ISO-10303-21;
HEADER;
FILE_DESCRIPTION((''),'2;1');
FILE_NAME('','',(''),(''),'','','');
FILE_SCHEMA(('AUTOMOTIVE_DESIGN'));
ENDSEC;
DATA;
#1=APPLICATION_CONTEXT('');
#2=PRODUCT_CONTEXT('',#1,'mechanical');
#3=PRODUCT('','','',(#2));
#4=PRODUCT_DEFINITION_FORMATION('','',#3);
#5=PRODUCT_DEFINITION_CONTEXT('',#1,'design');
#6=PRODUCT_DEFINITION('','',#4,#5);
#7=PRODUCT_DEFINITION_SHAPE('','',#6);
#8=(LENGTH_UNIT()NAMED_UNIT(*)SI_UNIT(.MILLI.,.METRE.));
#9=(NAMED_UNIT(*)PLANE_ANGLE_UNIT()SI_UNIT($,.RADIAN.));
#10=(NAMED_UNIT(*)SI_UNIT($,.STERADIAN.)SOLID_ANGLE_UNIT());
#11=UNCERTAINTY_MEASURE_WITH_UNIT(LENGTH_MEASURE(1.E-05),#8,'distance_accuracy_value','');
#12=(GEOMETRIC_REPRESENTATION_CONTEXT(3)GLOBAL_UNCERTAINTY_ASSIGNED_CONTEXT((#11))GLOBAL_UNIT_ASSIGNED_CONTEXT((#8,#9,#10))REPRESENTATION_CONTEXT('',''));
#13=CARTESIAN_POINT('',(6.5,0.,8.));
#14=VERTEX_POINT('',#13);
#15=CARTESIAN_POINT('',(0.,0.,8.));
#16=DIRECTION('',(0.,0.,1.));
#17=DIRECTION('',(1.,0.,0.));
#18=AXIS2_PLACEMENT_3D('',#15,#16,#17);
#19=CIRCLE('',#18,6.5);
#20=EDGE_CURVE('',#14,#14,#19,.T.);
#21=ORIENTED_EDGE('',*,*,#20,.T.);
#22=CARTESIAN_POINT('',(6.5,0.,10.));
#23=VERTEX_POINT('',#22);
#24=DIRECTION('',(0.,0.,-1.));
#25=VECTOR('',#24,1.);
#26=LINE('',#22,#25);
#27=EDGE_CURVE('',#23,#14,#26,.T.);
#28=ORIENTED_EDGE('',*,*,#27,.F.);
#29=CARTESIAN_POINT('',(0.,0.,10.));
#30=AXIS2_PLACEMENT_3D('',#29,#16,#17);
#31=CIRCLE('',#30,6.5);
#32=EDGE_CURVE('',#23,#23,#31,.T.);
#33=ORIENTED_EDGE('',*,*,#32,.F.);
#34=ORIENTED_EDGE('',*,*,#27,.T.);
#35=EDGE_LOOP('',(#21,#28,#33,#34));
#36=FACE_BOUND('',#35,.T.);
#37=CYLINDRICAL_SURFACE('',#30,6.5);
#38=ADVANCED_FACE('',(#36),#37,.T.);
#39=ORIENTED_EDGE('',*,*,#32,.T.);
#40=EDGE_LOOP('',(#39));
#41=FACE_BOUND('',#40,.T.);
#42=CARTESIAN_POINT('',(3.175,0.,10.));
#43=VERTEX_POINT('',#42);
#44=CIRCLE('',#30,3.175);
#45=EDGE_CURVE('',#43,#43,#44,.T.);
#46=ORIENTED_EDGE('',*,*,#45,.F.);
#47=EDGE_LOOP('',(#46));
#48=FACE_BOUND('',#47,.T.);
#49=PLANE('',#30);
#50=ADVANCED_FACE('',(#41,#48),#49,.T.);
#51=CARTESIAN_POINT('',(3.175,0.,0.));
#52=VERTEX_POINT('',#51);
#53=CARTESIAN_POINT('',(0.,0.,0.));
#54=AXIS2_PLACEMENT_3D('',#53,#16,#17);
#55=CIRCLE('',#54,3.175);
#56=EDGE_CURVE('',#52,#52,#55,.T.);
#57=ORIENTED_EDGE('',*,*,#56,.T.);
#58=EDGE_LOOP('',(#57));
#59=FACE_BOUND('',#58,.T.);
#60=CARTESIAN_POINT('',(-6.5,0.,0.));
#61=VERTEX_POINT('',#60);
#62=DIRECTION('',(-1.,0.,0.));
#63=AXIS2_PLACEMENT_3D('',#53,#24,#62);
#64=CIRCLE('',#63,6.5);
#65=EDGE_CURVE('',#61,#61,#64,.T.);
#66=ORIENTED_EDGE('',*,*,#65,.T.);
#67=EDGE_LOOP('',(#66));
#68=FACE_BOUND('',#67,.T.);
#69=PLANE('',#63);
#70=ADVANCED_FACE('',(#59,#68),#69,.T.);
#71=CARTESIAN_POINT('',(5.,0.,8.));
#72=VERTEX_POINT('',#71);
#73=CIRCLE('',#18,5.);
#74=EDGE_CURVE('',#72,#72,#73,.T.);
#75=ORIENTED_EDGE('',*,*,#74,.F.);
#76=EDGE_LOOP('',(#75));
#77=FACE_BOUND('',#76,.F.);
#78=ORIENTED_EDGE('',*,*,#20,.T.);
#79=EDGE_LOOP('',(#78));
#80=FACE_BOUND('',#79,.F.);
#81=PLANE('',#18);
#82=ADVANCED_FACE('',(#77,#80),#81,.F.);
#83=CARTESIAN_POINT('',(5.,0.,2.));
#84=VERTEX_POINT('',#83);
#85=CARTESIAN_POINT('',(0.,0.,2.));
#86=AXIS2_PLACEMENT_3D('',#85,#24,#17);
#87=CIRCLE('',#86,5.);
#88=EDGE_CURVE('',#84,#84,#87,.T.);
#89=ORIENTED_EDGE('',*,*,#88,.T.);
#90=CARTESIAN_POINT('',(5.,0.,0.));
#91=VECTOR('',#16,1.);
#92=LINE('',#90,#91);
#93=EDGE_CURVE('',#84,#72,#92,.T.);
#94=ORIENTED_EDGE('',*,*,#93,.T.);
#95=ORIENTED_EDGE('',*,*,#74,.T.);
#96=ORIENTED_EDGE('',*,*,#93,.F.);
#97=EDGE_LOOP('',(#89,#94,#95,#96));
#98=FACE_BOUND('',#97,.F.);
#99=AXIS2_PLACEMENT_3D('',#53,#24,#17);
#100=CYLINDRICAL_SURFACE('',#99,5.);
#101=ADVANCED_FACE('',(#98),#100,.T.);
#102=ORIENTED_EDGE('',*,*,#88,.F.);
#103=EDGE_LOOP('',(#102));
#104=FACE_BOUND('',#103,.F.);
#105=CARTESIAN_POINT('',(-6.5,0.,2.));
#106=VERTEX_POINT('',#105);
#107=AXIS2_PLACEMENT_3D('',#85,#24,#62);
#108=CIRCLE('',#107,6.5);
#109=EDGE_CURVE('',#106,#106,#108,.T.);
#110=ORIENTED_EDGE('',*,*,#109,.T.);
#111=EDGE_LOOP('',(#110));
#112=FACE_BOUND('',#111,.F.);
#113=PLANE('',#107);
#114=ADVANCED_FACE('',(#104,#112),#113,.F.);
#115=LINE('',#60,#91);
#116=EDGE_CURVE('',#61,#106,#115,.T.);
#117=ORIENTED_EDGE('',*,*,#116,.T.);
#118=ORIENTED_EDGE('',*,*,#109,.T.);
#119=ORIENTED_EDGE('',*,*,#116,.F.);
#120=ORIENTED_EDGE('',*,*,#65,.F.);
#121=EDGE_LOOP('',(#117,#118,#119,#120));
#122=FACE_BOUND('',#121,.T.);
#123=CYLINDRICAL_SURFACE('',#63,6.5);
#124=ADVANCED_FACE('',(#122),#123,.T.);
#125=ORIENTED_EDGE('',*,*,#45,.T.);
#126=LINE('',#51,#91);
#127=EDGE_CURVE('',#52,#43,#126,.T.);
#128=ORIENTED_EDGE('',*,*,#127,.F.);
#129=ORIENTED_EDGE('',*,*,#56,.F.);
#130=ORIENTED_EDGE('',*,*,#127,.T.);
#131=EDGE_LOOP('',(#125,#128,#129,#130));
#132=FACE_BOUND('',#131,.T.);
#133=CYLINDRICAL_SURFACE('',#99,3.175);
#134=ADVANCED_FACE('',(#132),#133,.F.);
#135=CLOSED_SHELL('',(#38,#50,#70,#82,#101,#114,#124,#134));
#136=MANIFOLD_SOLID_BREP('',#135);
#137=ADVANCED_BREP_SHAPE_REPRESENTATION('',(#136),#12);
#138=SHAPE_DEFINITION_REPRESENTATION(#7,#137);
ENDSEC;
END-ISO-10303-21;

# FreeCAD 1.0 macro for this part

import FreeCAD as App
import Part
import Sketcher
from FreeCAD import Vector

doc = App.newDocument("Part")
body = doc.addObject("PartDesign::Body", "Body")

# Sketch on XY plane
sketch1 = doc.addObject("Sketcher::SketchObject", "Sketch")
body.addObject(sketch1)
sketch1.AttachmentSupport = (doc.XY_Plane, [""])
sketch1.MapMode = "FlatFace"
sketch1.addGeometry([
    Part.Circle(Vector(0, 0, 0), Vector(0, 0, 1), 5),
    Part.Circle(Vector(0, 0, 0), Vector(0, 0, 1), 3.2),
], False)
sketch1.addConstraint([
    Sketcher.Constraint("Coincident", 0, 3, -1, 1),
    Sketcher.Constraint("Coincident", 1, 3, -1, 1),
    Sketcher.Constraint("Diameter", 0, 10.0),
    Sketcher.Constraint("Diameter", 1, 6.35),
])
pad1 = doc.addObject("PartDesign::Pad", "Pad")
body.addObject(pad1)
pad1.Profile = sketch1
pad1.Length = 10

# Sketch on XY plane
sketch2 = doc.addObject("Sketcher::SketchObject", "Sketch001")
body.addObject(sketch2)
sketch2.AttachmentSupport = (doc.XY_Plane, [""])
sketch2.MapMode = "FlatFace"
sketch2.AttachmentOffset = App.Placement(Vector(0, 0, 10), App.Rotation())
sketch2.addGeometry([
    Part.Circle(Vector(0, 0, 0), Vector(0, 0, 1), 6),
    Part.Circle(Vector(0, 0, 0), Vector(0, 0, 1), 5),
], False)
sketch2.addConstraint([
    Sketcher.Constraint("Coincident", 0, 3, -1, 1),
    Sketcher.Constraint("Coincident", 1, 3, -1, 1),
    Sketcher.Constraint("Diameter", 0, 13.0),
    Sketcher.Constraint("Diameter", 1, 10.0),
])
pad2 = doc.addObject("PartDesign::Pad", "Pad001")
body.addObject(pad2)
pad2.Profile = sketch2
pad2.Length = 2
pad2.Reversed = True

# Sketch on XY plane
sketch3 = doc.addObject("Sketcher::SketchObject", "Sketch002")
body.addObject(sketch3)
sketch3.AttachmentSupport = (doc.XY_Plane, [""])
sketch3.MapMode = "FlatFace"
sketch3.addGeometry([
    Part.Circle(Vector(0, 0, 0), Vector(0, 0, 1), 6),
    Part.Circle(Vector(0, 0, 0), Vector(0, 0, 1), 5),
], False)
sketch3.addConstraint([
    Sketcher.Constraint("Coincident", 0, 3, -1, 1),
    Sketcher.Constraint("Coincident", 1, 3, -1, 1),
    Sketcher.Constraint("Diameter", 0, 13.0),
    Sketcher.Constraint("Diameter", 1, 10.0),
])
pad3 = doc.addObject("PartDesign::Pad", "Pad002")
body.addObject(pad3)
pad3.Profile = sketch3
pad3.Length = 2

doc.recompute()
